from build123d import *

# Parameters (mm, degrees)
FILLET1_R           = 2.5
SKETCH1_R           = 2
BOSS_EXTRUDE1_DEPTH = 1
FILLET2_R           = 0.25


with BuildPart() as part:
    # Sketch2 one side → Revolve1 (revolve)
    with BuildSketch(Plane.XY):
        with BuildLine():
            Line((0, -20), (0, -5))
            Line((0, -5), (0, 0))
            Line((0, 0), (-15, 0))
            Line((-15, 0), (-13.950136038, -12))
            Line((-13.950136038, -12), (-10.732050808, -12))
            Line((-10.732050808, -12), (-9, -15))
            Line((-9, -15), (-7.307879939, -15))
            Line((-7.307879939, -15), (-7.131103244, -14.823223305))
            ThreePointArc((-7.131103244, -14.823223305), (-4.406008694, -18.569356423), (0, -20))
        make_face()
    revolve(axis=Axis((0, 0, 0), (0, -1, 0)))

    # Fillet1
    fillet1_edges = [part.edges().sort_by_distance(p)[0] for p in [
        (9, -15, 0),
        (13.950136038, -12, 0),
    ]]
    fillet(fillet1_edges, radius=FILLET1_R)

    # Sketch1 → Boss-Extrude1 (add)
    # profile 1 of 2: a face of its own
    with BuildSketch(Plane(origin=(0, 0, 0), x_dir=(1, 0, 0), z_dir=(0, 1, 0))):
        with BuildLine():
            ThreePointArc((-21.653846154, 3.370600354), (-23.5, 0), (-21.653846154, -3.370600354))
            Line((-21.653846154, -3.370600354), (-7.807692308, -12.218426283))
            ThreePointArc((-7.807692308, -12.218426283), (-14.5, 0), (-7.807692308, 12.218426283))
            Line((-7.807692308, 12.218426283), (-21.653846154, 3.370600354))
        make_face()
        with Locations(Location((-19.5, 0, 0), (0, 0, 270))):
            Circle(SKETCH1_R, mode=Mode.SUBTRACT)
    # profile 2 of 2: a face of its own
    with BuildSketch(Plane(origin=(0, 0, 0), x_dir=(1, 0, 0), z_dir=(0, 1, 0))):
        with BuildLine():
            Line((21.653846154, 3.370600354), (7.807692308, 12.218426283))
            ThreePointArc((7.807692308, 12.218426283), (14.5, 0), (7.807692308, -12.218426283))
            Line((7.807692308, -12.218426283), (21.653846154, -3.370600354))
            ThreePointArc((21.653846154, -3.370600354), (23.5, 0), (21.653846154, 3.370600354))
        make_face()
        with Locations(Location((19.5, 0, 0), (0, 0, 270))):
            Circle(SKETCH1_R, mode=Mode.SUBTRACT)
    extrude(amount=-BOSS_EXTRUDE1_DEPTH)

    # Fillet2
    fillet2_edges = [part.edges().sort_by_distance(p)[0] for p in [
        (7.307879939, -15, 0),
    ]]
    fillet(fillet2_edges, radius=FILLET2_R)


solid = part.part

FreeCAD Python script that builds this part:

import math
import FreeCAD as App
import Part
import Sketcher
from FreeCAD import Vector
Q = App.Units.Quantity


def edges_at(feature, points):
    """Names of the edges that pass closest to the given points."""
    edges = feature.Shape.Edges
    near = lambda p: min(range(len(edges)), key=lambda i: edges[i].distToShape(Part.Vertex(*p))[0])
    return sorted({f"Edge{near(p) + 1}" for p in points})

doc = App.newDocument("Part")
body = doc.addObject("PartDesign::Body", "Body")

# Sketch on XY plane
sketch1 = doc.addObject("Sketcher::SketchObject", "Sketch")
body.addObject(sketch1)
sketch1.AttachmentSupport = (doc.XY_Plane, [""])
sketch1.MapMode = "FlatFace"
sketch1.addGeometry([
    Part.LineSegment(Vector(0, -20, 0), Vector(0, 0, 0)),  # 0
    Part.LineSegment(Vector(0, 0, 0), Vector(-15, 0, 0)),  # 1
    Part.LineSegment(Vector(-15, 0, 0), Vector(-13.95, -12, 0)),  # 2
    Part.LineSegment(Vector(-13.95, -12, 0), Vector(-10.73, -12, 0)),  # 3
    Part.LineSegment(Vector(-10.73, -12, 0), Vector(-9, -15, 0)),  # 4
    Part.LineSegment(Vector(-9, -15, 0), Vector(-7.31, -15, 0)),  # 5
    Part.LineSegment(Vector(-7.31, -15, 0), Vector(-7.13, -14.82, 0)),  # 6
    Part.ArcOfCircle(Part.Circle(Vector(0, -12.5, 0), Vector(0, 0, 1), 7.5), math.radians(-162), math.radians(-90)),  # 7
], False)
sketch1.addConstraint([
    Sketcher.Constraint("Coincident", 0, 2, 1, 1),
    Sketcher.Constraint("Coincident", 1, 2, 2, 1),
    Sketcher.Constraint("Coincident", 2, 2, 3, 1),
    Sketcher.Constraint("Coincident", 3, 2, 4, 1),
    Sketcher.Constraint("Coincident", 4, 2, 5, 1),
    Sketcher.Constraint("Coincident", 5, 2, 6, 1),
    Sketcher.Constraint("Coincident", 6, 2, 7, 1),
    Sketcher.Constraint("Coincident", 7, 2, 0, 1),
    Sketcher.Constraint("Vertical", 0),
    Sketcher.Constraint("Horizontal", 1),
    Sketcher.Constraint("Horizontal", 3),
    Sketcher.Constraint("Horizontal", 5),
    Sketcher.Constraint("Coincident", 0, 2, -1, 1),
    Sketcher.Constraint("PointOnObject", 7, 3, -2),
    Sketcher.Constraint("Radius", 7, 7.5),
    Sketcher.Constraint("DistanceX", 1, 2, 1, 1, 15.0),
    Sketcher.Constraint("DistanceY", 0, 1, 0, 2, 20.0),
    Sketcher.Constraint("Angle", 2, Q("-85 deg")),
    Sketcher.Constraint("Angle", 4, Q("-60 deg")),
    Sketcher.Constraint("Angle", 6, Q("45 deg")),
    Sketcher.Constraint("DistanceY", 2, 2, -1, 1, 12.0),
    Sketcher.Constraint("DistanceX", 4, 2, -1, 1, 9.0),
    Sketcher.Constraint("DistanceY", 4, 2, -1, 1, 15.0),
    Sketcher.Constraint("Distance", 6, 0.25),
])
revolution = doc.addObject("PartDesign::Revolution", "Revolution")
body.addObject(revolution)
revolution.Profile = sketch1
revolution.ReferenceAxis = (sketch1, ["V_Axis"])
revolution.Angle = 360
doc.recompute()

fillet = doc.addObject("PartDesign::Fillet", "Fillet")
body.addObject(fillet)
fillet.Base = (revolution, edges_at(revolution, [(9, -15, 0), (13.95, -12, 0)]))
fillet.Radius = 2.5

# Sketch on XZ plane
sketch2 = doc.addObject("Sketcher::SketchObject", "Sketch001")
body.addObject(sketch2)
sketch2.AttachmentSupport = (doc.XZ_Plane, [""])
sketch2.MapMode = "FlatFace"
sketch2.addGeometry([
    Part.ArcOfCircle(Part.Circle(Vector(-19.5, 0, 0), Vector(0, 0, 1), 4), math.radians(123), math.radians(237)),  # 0
    Part.LineSegment(Vector(-21.7, 3.4, 0), Vector(-7.8, 12.2, 0)),  # 1
    Part.ArcOfCircle(Part.Circle(Vector(0, 0, 0), Vector(0, 0, 1), 14.5), math.radians(123), math.radians(237)),  # 2
    Part.LineSegment(Vector(-7.8, -12.2, 0), Vector(-21.7, -3.4, 0)),  # 3
    Part.Circle(Vector(-19.5, 0, 0), Vector(0, 0, 1), 2),  # 4
    Part.LineSegment(Vector(21.7, -3.4, 0), Vector(7.8, -12.2, 0)),  # 5
    Part.ArcOfCircle(Part.Circle(Vector(0, 0, 0), Vector(0, 0, 1), 14.5), math.radians(-57), math.radians(57)),  # 6
    Part.LineSegment(Vector(7.8, 12.2, 0), Vector(21.7, 3.4, 0)),  # 7
    Part.ArcOfCircle(Part.Circle(Vector(19.5, 0, 0), Vector(0, 0, 1), 4), math.radians(-57), math.radians(57)),  # 8
    Part.Circle(Vector(19.5, 0, 0), Vector(0, 0, 1), 2),  # 9
], False)
sketch2.addConstraint([
    Sketcher.Constraint("Tangent", 0, 1, 1, 1),
    Sketcher.Constraint("Tangent", 1, 2, 2, 1),
    Sketcher.Constraint("Tangent", 2, 2, 3, 1),
    Sketcher.Constraint("Tangent", 3, 2, 0, 2),
    Sketcher.Constraint("Tangent", 5, 2, 6, 1),
    Sketcher.Constraint("Tangent", 6, 2, 7, 1),
    Sketcher.Constraint("Tangent", 7, 2, 8, 2),
    Sketcher.Constraint("Tangent", 8, 1, 5, 1),
    Sketcher.Constraint("Coincident", 2, 3, -1, 1),
    Sketcher.Constraint("Coincident", 6, 3, -1, 1),
    Sketcher.Constraint("Coincident", 4, 3, 0, 3),
    Sketcher.Constraint("Coincident", 9, 3, 8, 3),
    Sketcher.Constraint("Equal", 2, 6),
    Sketcher.Constraint("Equal", 0, 8),
    Sketcher.Constraint("Equal", 4, 9),
    Sketcher.Constraint("Symmetric", 0, 3, 8, 3, -1, 1),
    Sketcher.Constraint("PointOnObject", 0, 3, -1),
    Sketcher.Constraint("Diameter", 4, 4.0),
    Sketcher.Constraint("Radius", 0, 4.0),
    Sketcher.Constraint("Radius", 2, 14.5),
    Sketcher.Constraint("DistanceX", 0, 3, 8, 3, 39.0),
])
pad1 = doc.addObject("PartDesign::Pad", "Pad")
body.addObject(pad1)
pad1.Profile = sketch2
pad1.Length = 1
doc.recompute()

fillet2 = doc.addObject("PartDesign::Fillet", "Fillet001")
body.addObject(fillet2)
fillet2.Base = (pad1, edges_at(pad1, [(7.308, -15, 0)]))
fillet2.Radius = 0.25

doc.recompute()
